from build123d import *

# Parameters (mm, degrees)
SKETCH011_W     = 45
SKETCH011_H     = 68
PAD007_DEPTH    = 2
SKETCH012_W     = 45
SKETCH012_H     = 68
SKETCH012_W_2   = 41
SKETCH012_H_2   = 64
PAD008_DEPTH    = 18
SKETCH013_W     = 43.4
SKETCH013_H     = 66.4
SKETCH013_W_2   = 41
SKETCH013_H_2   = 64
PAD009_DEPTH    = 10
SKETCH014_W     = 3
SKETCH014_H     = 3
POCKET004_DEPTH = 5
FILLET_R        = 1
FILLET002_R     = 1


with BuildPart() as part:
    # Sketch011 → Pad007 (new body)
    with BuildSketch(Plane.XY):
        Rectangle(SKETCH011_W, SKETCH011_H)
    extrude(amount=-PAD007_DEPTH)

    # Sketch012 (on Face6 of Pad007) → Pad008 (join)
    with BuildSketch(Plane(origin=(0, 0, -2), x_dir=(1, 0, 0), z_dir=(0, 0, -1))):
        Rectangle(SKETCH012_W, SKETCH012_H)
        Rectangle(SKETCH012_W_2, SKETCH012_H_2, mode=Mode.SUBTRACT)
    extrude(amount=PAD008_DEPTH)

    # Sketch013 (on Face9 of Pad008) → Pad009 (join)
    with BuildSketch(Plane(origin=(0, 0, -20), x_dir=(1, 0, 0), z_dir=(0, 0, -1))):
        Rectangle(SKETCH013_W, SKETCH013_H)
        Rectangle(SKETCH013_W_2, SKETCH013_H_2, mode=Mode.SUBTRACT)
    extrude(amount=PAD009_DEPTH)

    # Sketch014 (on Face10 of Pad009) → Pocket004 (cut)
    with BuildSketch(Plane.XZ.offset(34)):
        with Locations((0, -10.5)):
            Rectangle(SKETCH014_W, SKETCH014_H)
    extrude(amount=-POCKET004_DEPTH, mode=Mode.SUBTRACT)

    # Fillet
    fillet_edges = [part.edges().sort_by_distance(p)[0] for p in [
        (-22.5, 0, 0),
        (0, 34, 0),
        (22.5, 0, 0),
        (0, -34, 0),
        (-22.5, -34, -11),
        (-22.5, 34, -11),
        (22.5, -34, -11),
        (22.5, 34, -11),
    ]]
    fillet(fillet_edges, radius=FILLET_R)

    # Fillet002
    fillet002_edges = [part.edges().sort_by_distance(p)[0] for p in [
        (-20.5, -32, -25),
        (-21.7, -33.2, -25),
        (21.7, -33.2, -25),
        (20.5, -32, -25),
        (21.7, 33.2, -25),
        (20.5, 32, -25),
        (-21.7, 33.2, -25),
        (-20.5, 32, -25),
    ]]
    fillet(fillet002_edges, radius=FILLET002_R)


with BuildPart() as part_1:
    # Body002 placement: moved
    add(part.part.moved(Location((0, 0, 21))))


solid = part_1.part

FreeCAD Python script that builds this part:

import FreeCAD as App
import Part
import Sketcher
from FreeCAD import Vector
Q = App.Units.Quantity


def edges_at(feature, points):
    """Names of the edges that pass closest to the given points."""
    edges = feature.Shape.Edges
    near = lambda p: min(range(len(edges)), key=lambda i: edges[i].distToShape(Part.Vertex(*p))[0])
    return sorted({f"Edge{near(p) + 1}" for p in points})


def add_polygon(sketch, points):
    """Adds a closed chain of lines whose ends are joined by coincident constraints."""
    first, n = sketch.GeometryCount, len(points)
    for a, b in zip(points, points[1:] + points[:1]):
        sketch.addGeometry(Part.LineSegment(App.Vector(*a, 0), App.Vector(*b, 0)), False)
    for i in range(n):
        sketch.addConstraint(Sketcher.Constraint("Coincident", first + i, 2, first + (i + 1) % n, 1))

doc = App.newDocument("Part")
params = doc.addObject("Spreadsheet::Sheet", "Params")
for row, (alias, value) in enumerate([
    ("sketch1_width", "45 mm"),
    ("sketch1_height", "68 mm"),
    ("pad1_length", "2 mm"),
    ("sketch2_width", "45 mm"),
    ("sketch2_width2", "41 mm"),
    ("sketch2_height", "68 mm"),
    ("sketch2_height2", "64 mm"),
    ("pad2_length", "18 mm"),
    ("sketch3_width", "41 mm"),
    ("sketch3_height", "64 mm"),
    ("sketch3_width2", "43.4 mm"),
    ("sketch3_height2", "66.4 mm"),
    ("pad3_length", "10 mm"),
    ("sketch4_width", "3 mm"),
    ("pocket1_length", "5 mm"),
    ("fillet_radius", "1 mm"),
    ("fillet2_radius", "1 mm"),
], start=1):
    params.set(f"A{row}", alias)
    params.set(f"B{row}", "=" + value)
    params.setAlias(f"B{row}", alias)

body = doc.addObject("PartDesign::Body", "Body")

sketch1 = body.newObject("Sketcher::SketchObject", "Sketch")
sketch1.AttachmentSupport = (doc.getObject("XY_Plane"), [""])
sketch1.MapMode = "FlatFace"
add_polygon(sketch1, [(-22, 34), (-22, -34), (22, -34), (22, 34)])
sketch1.addConstraint(Sketcher.Constraint("Vertical", 0))
sketch1.addConstraint(Sketcher.Constraint("Horizontal", 1))
sketch1.addConstraint(Sketcher.Constraint("Vertical", 2))
sketch1.addConstraint(Sketcher.Constraint("Horizontal", 3))
sketch1.addConstraint(Sketcher.Constraint("Symmetric", 0, 2, 2, 2, -1, 1))
sketch1.addConstraint(Sketcher.Constraint("DistanceX", 1, 1, 1, 2, Q("45 mm")))
sketch1.addConstraint(Sketcher.Constraint("DistanceY", 0, 2, 0, 1, Q("68 mm")))
sketch1.setExpression("Constraints[9]", "Params.sketch1_width")
sketch1.setExpression("Constraints[10]", "Params.sketch1_height")
pad1 = body.newObject("PartDesign::Pad", "Pad")
pad1.Profile = sketch1
pad1.setExpression("Length", "Params.pad1_length")
pad1.Reversed = True

sketch2 = body.newObject("Sketcher::SketchObject", "Sketch001")
sketch2.AttachmentSupport = (doc.getObject("XY_Plane"), [""])
sketch2.MapMode = "FlatFace"
sketch2.AttachmentOffset = App.Placement(Vector(0, 0, -2), App.Rotation())
add_polygon(sketch2, [(-22, -34), (-22, 34), (22, 34), (22, -34)])
add_polygon(sketch2, [(20, 32), (-20, 32), (-20, -32), (20, -32)])
sketch2.addConstraint(Sketcher.Constraint("Vertical", 0))
sketch2.addConstraint(Sketcher.Constraint("Horizontal", 1))
sketch2.addConstraint(Sketcher.Constraint("Vertical", 2))
sketch2.addConstraint(Sketcher.Constraint("Horizontal", 3))
sketch2.addConstraint(Sketcher.Constraint("Horizontal", 4))
sketch2.addConstraint(Sketcher.Constraint("Vertical", 5))
sketch2.addConstraint(Sketcher.Constraint("Horizontal", 6))
sketch2.addConstraint(Sketcher.Constraint("Vertical", 7))
sketch2.addConstraint(Sketcher.Constraint("Symmetric", 0, 2, 2, 2, -1, 1))
sketch2.addConstraint(Sketcher.Constraint("Symmetric", 4, 2, 6, 2, -1, 1))
sketch2.addConstraint(Sketcher.Constraint("DistanceX", 1, 1, 1, 2, Q("45 mm")))
sketch2.addConstraint(Sketcher.Constraint("DistanceX", 4, 2, 4, 1, Q("41 mm")))
sketch2.addConstraint(Sketcher.Constraint("DistanceY", 0, 1, 0, 2, Q("68 mm")))
sketch2.addConstraint(Sketcher.Constraint("DistanceY", 5, 2, 5, 1, Q("64 mm")))
sketch2.setExpression("Constraints[18]", "Params.sketch2_width")
sketch2.setExpression("Constraints[19]", "Params.sketch2_width2")
sketch2.setExpression("Constraints[20]", "Params.sketch2_height")
sketch2.setExpression("Constraints[21]", "Params.sketch2_height2")
pad2 = body.newObject("PartDesign::Pad", "Pad001")
pad2.Profile = sketch2
pad2.setExpression("Length", "Params.pad2_length")
pad2.Reversed = True

sketch3 = body.newObject("Sketcher::SketchObject", "Sketch002")
sketch3.AttachmentSupport = (doc.getObject("XY_Plane"), [""])
sketch3.MapMode = "FlatFace"
sketch3.AttachmentOffset = App.Placement(Vector(0, 0, -20), App.Rotation())
add_polygon(sketch3, [(-22, -33), (-22, 33), (22, 33), (22, -33)])
add_polygon(sketch3, [(20, 32), (-20, 32), (-20, -32), (20, -32)])
sketch3.addConstraint(Sketcher.Constraint("Vertical", 0))
sketch3.addConstraint(Sketcher.Constraint("Horizontal", 1))
sketch3.addConstraint(Sketcher.Constraint("Vertical", 2))
sketch3.addConstraint(Sketcher.Constraint("Horizontal", 3))
sketch3.addConstraint(Sketcher.Constraint("Horizontal", 4))
sketch3.addConstraint(Sketcher.Constraint("Vertical", 5))
sketch3.addConstraint(Sketcher.Constraint("Horizontal", 6))
sketch3.addConstraint(Sketcher.Constraint("Vertical", 7))
sketch3.addConstraint(Sketcher.Constraint("Symmetric", 0, 2, 2, 2, -1, 1))
sketch3.addConstraint(Sketcher.Constraint("Symmetric", 4, 2, 6, 2, -1, 1))
sketch3.addConstraint(Sketcher.Constraint("DistanceX", 4, 2, 4, 1, Q("41 mm")))
sketch3.addConstraint(Sketcher.Constraint("DistanceY", 5, 2, 5, 1, Q("64 mm")))
sketch3.addConstraint(Sketcher.Constraint("DistanceX", 1, 1, 1, 2, Q("43.4 mm")))
sketch3.addConstraint(Sketcher.Constraint("DistanceY", 0, 1, 0, 2, Q("66.4 mm")))
sketch3.setExpression("Constraints[18]", "Params.sketch3_width")
sketch3.setExpression("Constraints[19]", "Params.sketch3_height")
sketch3.setExpression("Constraints[20]", "Params.sketch3_width2")
sketch3.setExpression("Constraints[21]", "Params.sketch3_height2")
pad3 = body.newObject("PartDesign::Pad", "Pad002")
pad3.Profile = sketch3
pad3.setExpression("Length", "Params.pad3_length")
pad3.Reversed = True

sketch4 = body.newObject("Sketcher::SketchObject", "Sketch003")
sketch4.AttachmentSupport = (doc.getObject("XZ_Plane"), [""])
sketch4.MapMode = "FlatFace"
sketch4.AttachmentOffset = App.Placement(Vector(0, 0, 34), App.Rotation())
add_polygon(sketch4, [(-1.5, -9), (-1.5, -12), (1.5, -12), (1.5, -9)])
sketch4.addConstraint(Sketcher.Constraint("Vertical", 0))
sketch4.addConstraint(Sketcher.Constraint("Horizontal", 1))
sketch4.addConstraint(Sketcher.Constraint("Vertical", 2))
sketch4.addConstraint(Sketcher.Constraint("Horizontal", 3))
sketch4.addConstraint(Sketcher.Constraint("Equal", 3, 0))
sketch4.addConstraint(Sketcher.Constraint("DistanceX", 1, 1, 1, 2, Q("3 mm")))
sketch4.addConstraint(Sketcher.Constraint("DistanceY", 0, 2, -1, 1, Q("12 mm")))
sketch4.addConstraint(Sketcher.Constraint("DistanceX", 0, 2, -1, 1, Q("1.5 mm")))
sketch4.setExpression("Constraints[9]", "Params.sketch4_width")
pocket1 = body.newObject("PartDesign::Pocket", "Pocket")
pocket1.Profile = sketch4
pocket1.setExpression("Length", "Params.pocket1_length")
doc.recompute()

fillet = body.newObject("PartDesign::Fillet", "Fillet")
fillet.Base = (pocket1, edges_at(pocket1, [
    (-22.5, 0, 0),
    (0, 34, 0),
    (22.5, 0, 0),
    (0, -34, 0),
    (-22.5, -34, -10),
    (-22.5, 34, -10),
    (22.5, -34, -10),
    (22.5, 34, -10),
]))
fillet.setExpression("Radius", "Params.fillet_radius")
doc.recompute()

fillet2 = body.newObject("PartDesign::Fillet", "Fillet001")
fillet2.Base = (fillet, edges_at(fillet, [
    (-20.5, -32, -16),
    (-21.7, -33.2, -25),
    (21.7, -33.2, -25),
    (20.5, -32, -16),
    (21.7, 33.2, -25),
    (20.5, 32, -16),
    (-21.7, 33.2, -25),
    (-20.5, 32, -16),
]))
fillet2.setExpression("Radius", "Params.fillet2_radius")
body2 = doc.addObject("PartDesign::Body", "Body001")
doc.recompute()

body.Placement = App.Placement(Vector(0, 0, 21), App.Rotation(Vector(0, 0, 1), 0))
boolean = body2.newObject("PartDesign::Boolean", "Boolean")
boolean.Type = "Fuse"
boolean.addObjects([body])

doc.recompute()
